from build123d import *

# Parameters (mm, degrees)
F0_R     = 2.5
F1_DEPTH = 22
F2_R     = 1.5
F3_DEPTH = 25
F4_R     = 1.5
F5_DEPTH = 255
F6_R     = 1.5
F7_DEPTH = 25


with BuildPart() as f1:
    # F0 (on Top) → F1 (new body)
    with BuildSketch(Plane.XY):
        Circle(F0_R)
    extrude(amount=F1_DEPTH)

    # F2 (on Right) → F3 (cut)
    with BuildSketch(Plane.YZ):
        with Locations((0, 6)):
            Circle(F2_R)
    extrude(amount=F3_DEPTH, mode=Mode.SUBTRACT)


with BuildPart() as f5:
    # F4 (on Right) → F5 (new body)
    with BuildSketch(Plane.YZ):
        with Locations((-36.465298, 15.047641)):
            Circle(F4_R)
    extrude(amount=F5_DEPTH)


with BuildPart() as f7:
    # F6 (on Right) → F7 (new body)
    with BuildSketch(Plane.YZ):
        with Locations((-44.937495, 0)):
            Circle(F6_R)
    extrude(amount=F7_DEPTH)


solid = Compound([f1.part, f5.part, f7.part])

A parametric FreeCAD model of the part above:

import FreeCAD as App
import Part
import Sketcher
Q = App.Units.Quantity

doc = App.newDocument("Part")
body = doc.addObject("PartDesign::Body", "Body")

# Sketch on XY plane
sketch1 = doc.addObject("Sketcher::SketchObject", "Sketch")
body.addObject(sketch1)
sketch1.AttachmentSupport = (doc.XY_Plane, [""])
sketch1.MapMode = "FlatFace"
sketch1.addGeometry(Part.Circle(App.Vector(0, 0, 0), App.Vector(0, 0, 1), 2.5), False)
sketch1.addConstraint(Sketcher.Constraint("Coincident", 0, 3, -1, 1))
sketch1.addConstraint(Sketcher.Constraint("Diameter", 0, Q("5 mm")))
pad1 = doc.addObject("PartDesign::Pad", "Pad")
body.addObject(pad1)
pad1.Profile = sketch1
pad1.Length = 22

# Sketch on YZ plane
sketch2 = doc.addObject("Sketcher::SketchObject", "Sketch001")
body.addObject(sketch2)
sketch2.AttachmentSupport = (doc.YZ_Plane, [""])
sketch2.MapMode = "FlatFace"
sketch2.addGeometry(Part.Circle(App.Vector(0, 6, 0), App.Vector(0, 0, 1), 1.5), False)
sketch2.addConstraint(Sketcher.Constraint("PointOnObject", 0, 3, -2))
sketch2.addConstraint(Sketcher.Constraint("Diameter", 0, Q("3 mm")))
sketch2.addConstraint(Sketcher.Constraint("DistanceY", -1, 1, 0, 3, Q("6 mm")))
pocket1 = doc.addObject("PartDesign::Pocket", "Pocket")
body.addObject(pocket1)
pocket1.Profile = sketch2
pocket1.Length = 25
pocket1.Reversed = True
body2 = doc.addObject("PartDesign::Body", "Body001")

# Sketch on YZ plane
sketch3 = doc.addObject("Sketcher::SketchObject", "Sketch002")
body2.addObject(sketch3)
sketch3.AttachmentSupport = (doc.getObject("YZ_Plane001"), [""])
sketch3.MapMode = "FlatFace"
sketch3.addGeometry(Part.Circle(App.Vector(-36.5, 15, 0), App.Vector(0, 0, 1), 1.5), False)
sketch3.addConstraint(Sketcher.Constraint("Diameter", 0, Q("3 mm")))
sketch3.addConstraint(Sketcher.Constraint("DistanceY", -1, 1, 0, 3, Q("15.047641 mm")))
sketch3.addConstraint(Sketcher.Constraint("DistanceX", 0, 3, -1, 1, Q("36.465298 mm")))
pad2 = doc.addObject("PartDesign::Pad", "Pad001")
body2.addObject(pad2)
pad2.Profile = sketch3
pad2.Length = 255
body3 = doc.addObject("PartDesign::Body", "Body002")

# Sketch on YZ plane
sketch4 = doc.addObject("Sketcher::SketchObject", "Sketch003")
body3.addObject(sketch4)
sketch4.AttachmentSupport = (doc.getObject("YZ_Plane002"), [""])
sketch4.MapMode = "FlatFace"
sketch4.addGeometry(Part.Circle(App.Vector(-44.9, 0, 0), App.Vector(0, 0, 1), 1.5), False)
sketch4.addConstraint(Sketcher.Constraint("PointOnObject", 0, 3, -1))
sketch4.addConstraint(Sketcher.Constraint("Diameter", 0, Q("3 mm")))
sketch4.addConstraint(Sketcher.Constraint("DistanceX", 0, 3, -1, 1, Q("44.937495 mm")))
pad3 = doc.addObject("PartDesign::Pad", "Pad002")
body3.addObject(pad3)
pad3.Profile = sketch4
pad3.Length = 25

doc.recompute()
